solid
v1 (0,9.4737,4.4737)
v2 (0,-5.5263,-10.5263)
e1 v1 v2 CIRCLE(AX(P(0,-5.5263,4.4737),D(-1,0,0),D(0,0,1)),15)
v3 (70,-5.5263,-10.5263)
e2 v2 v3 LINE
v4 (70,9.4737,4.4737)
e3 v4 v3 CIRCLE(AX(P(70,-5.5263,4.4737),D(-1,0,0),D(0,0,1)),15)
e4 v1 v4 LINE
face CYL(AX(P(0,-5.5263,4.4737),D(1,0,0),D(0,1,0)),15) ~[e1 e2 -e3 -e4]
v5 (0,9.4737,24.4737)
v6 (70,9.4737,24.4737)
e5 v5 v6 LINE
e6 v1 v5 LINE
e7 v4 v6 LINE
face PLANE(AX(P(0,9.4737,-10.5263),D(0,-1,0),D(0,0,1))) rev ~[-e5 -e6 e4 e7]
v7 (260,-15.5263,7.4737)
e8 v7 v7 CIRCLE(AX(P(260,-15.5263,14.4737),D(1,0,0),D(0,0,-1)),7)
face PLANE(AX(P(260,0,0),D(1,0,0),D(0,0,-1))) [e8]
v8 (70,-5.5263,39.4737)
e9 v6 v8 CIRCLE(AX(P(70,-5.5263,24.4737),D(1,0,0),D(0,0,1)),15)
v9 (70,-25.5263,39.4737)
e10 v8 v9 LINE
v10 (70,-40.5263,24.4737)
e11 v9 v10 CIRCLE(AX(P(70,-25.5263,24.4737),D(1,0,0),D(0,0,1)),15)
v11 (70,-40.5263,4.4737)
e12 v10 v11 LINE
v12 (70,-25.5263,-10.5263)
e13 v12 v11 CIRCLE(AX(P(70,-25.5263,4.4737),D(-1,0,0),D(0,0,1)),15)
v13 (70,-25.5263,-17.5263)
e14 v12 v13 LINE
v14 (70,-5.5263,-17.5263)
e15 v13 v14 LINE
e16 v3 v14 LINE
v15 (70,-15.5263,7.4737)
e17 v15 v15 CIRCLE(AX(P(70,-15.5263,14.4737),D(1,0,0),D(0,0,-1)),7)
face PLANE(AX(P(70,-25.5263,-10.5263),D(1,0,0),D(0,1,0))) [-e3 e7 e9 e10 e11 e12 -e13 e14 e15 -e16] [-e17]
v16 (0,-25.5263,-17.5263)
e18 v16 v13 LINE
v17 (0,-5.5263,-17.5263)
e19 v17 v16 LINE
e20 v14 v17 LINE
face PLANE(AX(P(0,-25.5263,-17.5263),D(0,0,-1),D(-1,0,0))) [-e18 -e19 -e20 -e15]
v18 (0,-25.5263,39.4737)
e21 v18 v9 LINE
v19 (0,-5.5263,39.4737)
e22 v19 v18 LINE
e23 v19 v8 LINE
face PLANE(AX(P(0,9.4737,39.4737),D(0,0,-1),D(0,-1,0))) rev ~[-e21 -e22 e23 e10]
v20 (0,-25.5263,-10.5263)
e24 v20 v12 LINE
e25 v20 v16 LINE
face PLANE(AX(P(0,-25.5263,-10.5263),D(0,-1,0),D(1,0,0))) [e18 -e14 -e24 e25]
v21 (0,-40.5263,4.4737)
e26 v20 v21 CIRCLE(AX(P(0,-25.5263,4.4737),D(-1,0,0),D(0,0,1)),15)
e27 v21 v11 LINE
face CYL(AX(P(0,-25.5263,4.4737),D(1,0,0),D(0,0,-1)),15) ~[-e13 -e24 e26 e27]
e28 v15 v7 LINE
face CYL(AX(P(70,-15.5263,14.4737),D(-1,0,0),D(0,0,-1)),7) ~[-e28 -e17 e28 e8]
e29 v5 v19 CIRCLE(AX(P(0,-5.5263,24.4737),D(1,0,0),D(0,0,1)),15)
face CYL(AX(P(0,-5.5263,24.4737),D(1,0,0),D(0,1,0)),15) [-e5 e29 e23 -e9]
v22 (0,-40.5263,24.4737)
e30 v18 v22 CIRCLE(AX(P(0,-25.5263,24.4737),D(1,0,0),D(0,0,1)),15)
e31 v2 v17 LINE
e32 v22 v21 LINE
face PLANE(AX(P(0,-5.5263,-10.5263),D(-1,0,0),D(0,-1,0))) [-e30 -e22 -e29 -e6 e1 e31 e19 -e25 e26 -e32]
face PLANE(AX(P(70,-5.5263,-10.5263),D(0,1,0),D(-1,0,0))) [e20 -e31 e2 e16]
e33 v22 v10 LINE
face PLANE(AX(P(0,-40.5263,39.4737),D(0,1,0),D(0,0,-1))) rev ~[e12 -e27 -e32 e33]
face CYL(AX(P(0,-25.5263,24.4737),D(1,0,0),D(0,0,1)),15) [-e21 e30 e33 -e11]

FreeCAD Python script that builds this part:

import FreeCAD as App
import Part
import Sketcher

V = App.Vector


def edges_at(feature, points):
    """Names of the edges that pass closest to the given points."""
    edges = feature.Shape.Edges
    near = lambda p: min(range(len(edges)), key=lambda i: edges[i].distToShape(Part.Vertex(*p))[0])
    return sorted({f"Edge{near(p) + 1}" for p in points})


def add_polygon(sketch, points):
    """Adds a closed chain of lines whose ends are joined by coincident constraints."""
    first, n = sketch.GeometryCount, len(points)
    for a, b in zip(points, points[1:] + points[:1]):
        sketch.addGeometry(Part.LineSegment(App.Vector(*a, 0), App.Vector(*b, 0)), False)
    for i in range(n):
        sketch.addConstraint(Sketcher.Constraint("Coincident", first + i, 2, first + (i + 1) % n, 1))

doc = App.newDocument("Part")
body = doc.addObject("PartDesign::Body", "Body")

# Sketch on YZ plane
sketch1 = body.newObject("Sketcher::SketchObject", "Sketch")
sketch1.AttachmentSupport = (doc.getObject("YZ_Plane"), [""])
sketch1.MapMode = "FlatFace"
add_polygon(sketch1, [(9, -11), (9, 39), (-41, 39), (-41, -11)])  # lines 0-3
sketch1.addConstraint([
    Sketcher.Constraint("Vertical", 0),
    Sketcher.Constraint("Horizontal", 1),
    Sketcher.Constraint("Vertical", 2),
    Sketcher.Constraint("Horizontal", 3),
    Sketcher.Constraint("Equal", 3, 0),
    Sketcher.Constraint("DistanceX", 1, 2, 1, 1, 50.0),
    Sketcher.Constraint("DistanceX", -1, 1, 0, 2, 9.4737),
    Sketcher.Constraint("DistanceY", -1, 1, 0, 2, 39.4737),
])
pad1 = body.newObject("PartDesign::Pad", "Pad")
pad1.Profile = sketch1
pad1.Length = 70

# Sketch on YZ plane
sketch2 = body.newObject("Sketcher::SketchObject", "Sketch001")
sketch2.AttachmentSupport = (doc.getObject("YZ_Plane"), [""])
sketch2.MapMode = "FlatFace"
sketch2.AttachmentOffset = App.Placement(V(0, 0, 70), App.Rotation())
sketch2.addGeometry(Part.Circle(V(-16, 14, 0), V(0, 0, 1), 7), False)
sketch2.addConstraint([
    Sketcher.Constraint("Diameter", 0, 14.0),
    Sketcher.Constraint("DistanceX", 0, 3, -1, 1, 15.5263),
    Sketcher.Constraint("DistanceY", -1, 1, 0, 3, 14.4737),
])
pad2 = body.newObject("PartDesign::Pad", "Pad001")
pad2.Profile = sketch2
pad2.Length = 190
doc.recompute()

fillet = body.newObject("PartDesign::Fillet", "Fillet")
fillet.Base = (pad2, edges_at(pad2, [
    (35, 9.474, 39.474),
    (35, -40.526, 39.474),
    (35, 9.474, -10.526),
    (35, -40.526, -10.526),
]))
fillet.Radius = 15

# Sketch on XY plane
sketch3 = body.newObject("Sketcher::SketchObject", "Sketch002")
sketch3.AttachmentSupport = (doc.getObject("XY_Plane"), [""])
sketch3.MapMode = "FlatFace"
sketch3.AttachmentOffset = App.Placement(V(0, 0, -10.5263), App.Rotation())
add_polygon(sketch3, [(0, -6), (70, -6), (70, -26), (0, -26)])  # lines 0-3
sketch3.addConstraint([
    Sketcher.Constraint("Horizontal", 0),
    Sketcher.Constraint("Vertical", 1),
    Sketcher.Constraint("Horizontal", 2),
    Sketcher.Constraint("Vertical", 3),
    Sketcher.Constraint("PointOnObject", 2, 2, -2),
    Sketcher.Constraint("DistanceX", 0, 1, 0, 2, 70.0),
    Sketcher.Constraint("DistanceY", 1, 2, 1, 1, 20.0),
    Sketcher.Constraint("DistanceY", 0, 2, -1, 1, 5.5263),
])
pad3 = body.newObject("PartDesign::Pad", "Pad002")
pad3.Profile = sketch3
pad3.Length = 7
pad3.Reversed = True

doc.recompute()
